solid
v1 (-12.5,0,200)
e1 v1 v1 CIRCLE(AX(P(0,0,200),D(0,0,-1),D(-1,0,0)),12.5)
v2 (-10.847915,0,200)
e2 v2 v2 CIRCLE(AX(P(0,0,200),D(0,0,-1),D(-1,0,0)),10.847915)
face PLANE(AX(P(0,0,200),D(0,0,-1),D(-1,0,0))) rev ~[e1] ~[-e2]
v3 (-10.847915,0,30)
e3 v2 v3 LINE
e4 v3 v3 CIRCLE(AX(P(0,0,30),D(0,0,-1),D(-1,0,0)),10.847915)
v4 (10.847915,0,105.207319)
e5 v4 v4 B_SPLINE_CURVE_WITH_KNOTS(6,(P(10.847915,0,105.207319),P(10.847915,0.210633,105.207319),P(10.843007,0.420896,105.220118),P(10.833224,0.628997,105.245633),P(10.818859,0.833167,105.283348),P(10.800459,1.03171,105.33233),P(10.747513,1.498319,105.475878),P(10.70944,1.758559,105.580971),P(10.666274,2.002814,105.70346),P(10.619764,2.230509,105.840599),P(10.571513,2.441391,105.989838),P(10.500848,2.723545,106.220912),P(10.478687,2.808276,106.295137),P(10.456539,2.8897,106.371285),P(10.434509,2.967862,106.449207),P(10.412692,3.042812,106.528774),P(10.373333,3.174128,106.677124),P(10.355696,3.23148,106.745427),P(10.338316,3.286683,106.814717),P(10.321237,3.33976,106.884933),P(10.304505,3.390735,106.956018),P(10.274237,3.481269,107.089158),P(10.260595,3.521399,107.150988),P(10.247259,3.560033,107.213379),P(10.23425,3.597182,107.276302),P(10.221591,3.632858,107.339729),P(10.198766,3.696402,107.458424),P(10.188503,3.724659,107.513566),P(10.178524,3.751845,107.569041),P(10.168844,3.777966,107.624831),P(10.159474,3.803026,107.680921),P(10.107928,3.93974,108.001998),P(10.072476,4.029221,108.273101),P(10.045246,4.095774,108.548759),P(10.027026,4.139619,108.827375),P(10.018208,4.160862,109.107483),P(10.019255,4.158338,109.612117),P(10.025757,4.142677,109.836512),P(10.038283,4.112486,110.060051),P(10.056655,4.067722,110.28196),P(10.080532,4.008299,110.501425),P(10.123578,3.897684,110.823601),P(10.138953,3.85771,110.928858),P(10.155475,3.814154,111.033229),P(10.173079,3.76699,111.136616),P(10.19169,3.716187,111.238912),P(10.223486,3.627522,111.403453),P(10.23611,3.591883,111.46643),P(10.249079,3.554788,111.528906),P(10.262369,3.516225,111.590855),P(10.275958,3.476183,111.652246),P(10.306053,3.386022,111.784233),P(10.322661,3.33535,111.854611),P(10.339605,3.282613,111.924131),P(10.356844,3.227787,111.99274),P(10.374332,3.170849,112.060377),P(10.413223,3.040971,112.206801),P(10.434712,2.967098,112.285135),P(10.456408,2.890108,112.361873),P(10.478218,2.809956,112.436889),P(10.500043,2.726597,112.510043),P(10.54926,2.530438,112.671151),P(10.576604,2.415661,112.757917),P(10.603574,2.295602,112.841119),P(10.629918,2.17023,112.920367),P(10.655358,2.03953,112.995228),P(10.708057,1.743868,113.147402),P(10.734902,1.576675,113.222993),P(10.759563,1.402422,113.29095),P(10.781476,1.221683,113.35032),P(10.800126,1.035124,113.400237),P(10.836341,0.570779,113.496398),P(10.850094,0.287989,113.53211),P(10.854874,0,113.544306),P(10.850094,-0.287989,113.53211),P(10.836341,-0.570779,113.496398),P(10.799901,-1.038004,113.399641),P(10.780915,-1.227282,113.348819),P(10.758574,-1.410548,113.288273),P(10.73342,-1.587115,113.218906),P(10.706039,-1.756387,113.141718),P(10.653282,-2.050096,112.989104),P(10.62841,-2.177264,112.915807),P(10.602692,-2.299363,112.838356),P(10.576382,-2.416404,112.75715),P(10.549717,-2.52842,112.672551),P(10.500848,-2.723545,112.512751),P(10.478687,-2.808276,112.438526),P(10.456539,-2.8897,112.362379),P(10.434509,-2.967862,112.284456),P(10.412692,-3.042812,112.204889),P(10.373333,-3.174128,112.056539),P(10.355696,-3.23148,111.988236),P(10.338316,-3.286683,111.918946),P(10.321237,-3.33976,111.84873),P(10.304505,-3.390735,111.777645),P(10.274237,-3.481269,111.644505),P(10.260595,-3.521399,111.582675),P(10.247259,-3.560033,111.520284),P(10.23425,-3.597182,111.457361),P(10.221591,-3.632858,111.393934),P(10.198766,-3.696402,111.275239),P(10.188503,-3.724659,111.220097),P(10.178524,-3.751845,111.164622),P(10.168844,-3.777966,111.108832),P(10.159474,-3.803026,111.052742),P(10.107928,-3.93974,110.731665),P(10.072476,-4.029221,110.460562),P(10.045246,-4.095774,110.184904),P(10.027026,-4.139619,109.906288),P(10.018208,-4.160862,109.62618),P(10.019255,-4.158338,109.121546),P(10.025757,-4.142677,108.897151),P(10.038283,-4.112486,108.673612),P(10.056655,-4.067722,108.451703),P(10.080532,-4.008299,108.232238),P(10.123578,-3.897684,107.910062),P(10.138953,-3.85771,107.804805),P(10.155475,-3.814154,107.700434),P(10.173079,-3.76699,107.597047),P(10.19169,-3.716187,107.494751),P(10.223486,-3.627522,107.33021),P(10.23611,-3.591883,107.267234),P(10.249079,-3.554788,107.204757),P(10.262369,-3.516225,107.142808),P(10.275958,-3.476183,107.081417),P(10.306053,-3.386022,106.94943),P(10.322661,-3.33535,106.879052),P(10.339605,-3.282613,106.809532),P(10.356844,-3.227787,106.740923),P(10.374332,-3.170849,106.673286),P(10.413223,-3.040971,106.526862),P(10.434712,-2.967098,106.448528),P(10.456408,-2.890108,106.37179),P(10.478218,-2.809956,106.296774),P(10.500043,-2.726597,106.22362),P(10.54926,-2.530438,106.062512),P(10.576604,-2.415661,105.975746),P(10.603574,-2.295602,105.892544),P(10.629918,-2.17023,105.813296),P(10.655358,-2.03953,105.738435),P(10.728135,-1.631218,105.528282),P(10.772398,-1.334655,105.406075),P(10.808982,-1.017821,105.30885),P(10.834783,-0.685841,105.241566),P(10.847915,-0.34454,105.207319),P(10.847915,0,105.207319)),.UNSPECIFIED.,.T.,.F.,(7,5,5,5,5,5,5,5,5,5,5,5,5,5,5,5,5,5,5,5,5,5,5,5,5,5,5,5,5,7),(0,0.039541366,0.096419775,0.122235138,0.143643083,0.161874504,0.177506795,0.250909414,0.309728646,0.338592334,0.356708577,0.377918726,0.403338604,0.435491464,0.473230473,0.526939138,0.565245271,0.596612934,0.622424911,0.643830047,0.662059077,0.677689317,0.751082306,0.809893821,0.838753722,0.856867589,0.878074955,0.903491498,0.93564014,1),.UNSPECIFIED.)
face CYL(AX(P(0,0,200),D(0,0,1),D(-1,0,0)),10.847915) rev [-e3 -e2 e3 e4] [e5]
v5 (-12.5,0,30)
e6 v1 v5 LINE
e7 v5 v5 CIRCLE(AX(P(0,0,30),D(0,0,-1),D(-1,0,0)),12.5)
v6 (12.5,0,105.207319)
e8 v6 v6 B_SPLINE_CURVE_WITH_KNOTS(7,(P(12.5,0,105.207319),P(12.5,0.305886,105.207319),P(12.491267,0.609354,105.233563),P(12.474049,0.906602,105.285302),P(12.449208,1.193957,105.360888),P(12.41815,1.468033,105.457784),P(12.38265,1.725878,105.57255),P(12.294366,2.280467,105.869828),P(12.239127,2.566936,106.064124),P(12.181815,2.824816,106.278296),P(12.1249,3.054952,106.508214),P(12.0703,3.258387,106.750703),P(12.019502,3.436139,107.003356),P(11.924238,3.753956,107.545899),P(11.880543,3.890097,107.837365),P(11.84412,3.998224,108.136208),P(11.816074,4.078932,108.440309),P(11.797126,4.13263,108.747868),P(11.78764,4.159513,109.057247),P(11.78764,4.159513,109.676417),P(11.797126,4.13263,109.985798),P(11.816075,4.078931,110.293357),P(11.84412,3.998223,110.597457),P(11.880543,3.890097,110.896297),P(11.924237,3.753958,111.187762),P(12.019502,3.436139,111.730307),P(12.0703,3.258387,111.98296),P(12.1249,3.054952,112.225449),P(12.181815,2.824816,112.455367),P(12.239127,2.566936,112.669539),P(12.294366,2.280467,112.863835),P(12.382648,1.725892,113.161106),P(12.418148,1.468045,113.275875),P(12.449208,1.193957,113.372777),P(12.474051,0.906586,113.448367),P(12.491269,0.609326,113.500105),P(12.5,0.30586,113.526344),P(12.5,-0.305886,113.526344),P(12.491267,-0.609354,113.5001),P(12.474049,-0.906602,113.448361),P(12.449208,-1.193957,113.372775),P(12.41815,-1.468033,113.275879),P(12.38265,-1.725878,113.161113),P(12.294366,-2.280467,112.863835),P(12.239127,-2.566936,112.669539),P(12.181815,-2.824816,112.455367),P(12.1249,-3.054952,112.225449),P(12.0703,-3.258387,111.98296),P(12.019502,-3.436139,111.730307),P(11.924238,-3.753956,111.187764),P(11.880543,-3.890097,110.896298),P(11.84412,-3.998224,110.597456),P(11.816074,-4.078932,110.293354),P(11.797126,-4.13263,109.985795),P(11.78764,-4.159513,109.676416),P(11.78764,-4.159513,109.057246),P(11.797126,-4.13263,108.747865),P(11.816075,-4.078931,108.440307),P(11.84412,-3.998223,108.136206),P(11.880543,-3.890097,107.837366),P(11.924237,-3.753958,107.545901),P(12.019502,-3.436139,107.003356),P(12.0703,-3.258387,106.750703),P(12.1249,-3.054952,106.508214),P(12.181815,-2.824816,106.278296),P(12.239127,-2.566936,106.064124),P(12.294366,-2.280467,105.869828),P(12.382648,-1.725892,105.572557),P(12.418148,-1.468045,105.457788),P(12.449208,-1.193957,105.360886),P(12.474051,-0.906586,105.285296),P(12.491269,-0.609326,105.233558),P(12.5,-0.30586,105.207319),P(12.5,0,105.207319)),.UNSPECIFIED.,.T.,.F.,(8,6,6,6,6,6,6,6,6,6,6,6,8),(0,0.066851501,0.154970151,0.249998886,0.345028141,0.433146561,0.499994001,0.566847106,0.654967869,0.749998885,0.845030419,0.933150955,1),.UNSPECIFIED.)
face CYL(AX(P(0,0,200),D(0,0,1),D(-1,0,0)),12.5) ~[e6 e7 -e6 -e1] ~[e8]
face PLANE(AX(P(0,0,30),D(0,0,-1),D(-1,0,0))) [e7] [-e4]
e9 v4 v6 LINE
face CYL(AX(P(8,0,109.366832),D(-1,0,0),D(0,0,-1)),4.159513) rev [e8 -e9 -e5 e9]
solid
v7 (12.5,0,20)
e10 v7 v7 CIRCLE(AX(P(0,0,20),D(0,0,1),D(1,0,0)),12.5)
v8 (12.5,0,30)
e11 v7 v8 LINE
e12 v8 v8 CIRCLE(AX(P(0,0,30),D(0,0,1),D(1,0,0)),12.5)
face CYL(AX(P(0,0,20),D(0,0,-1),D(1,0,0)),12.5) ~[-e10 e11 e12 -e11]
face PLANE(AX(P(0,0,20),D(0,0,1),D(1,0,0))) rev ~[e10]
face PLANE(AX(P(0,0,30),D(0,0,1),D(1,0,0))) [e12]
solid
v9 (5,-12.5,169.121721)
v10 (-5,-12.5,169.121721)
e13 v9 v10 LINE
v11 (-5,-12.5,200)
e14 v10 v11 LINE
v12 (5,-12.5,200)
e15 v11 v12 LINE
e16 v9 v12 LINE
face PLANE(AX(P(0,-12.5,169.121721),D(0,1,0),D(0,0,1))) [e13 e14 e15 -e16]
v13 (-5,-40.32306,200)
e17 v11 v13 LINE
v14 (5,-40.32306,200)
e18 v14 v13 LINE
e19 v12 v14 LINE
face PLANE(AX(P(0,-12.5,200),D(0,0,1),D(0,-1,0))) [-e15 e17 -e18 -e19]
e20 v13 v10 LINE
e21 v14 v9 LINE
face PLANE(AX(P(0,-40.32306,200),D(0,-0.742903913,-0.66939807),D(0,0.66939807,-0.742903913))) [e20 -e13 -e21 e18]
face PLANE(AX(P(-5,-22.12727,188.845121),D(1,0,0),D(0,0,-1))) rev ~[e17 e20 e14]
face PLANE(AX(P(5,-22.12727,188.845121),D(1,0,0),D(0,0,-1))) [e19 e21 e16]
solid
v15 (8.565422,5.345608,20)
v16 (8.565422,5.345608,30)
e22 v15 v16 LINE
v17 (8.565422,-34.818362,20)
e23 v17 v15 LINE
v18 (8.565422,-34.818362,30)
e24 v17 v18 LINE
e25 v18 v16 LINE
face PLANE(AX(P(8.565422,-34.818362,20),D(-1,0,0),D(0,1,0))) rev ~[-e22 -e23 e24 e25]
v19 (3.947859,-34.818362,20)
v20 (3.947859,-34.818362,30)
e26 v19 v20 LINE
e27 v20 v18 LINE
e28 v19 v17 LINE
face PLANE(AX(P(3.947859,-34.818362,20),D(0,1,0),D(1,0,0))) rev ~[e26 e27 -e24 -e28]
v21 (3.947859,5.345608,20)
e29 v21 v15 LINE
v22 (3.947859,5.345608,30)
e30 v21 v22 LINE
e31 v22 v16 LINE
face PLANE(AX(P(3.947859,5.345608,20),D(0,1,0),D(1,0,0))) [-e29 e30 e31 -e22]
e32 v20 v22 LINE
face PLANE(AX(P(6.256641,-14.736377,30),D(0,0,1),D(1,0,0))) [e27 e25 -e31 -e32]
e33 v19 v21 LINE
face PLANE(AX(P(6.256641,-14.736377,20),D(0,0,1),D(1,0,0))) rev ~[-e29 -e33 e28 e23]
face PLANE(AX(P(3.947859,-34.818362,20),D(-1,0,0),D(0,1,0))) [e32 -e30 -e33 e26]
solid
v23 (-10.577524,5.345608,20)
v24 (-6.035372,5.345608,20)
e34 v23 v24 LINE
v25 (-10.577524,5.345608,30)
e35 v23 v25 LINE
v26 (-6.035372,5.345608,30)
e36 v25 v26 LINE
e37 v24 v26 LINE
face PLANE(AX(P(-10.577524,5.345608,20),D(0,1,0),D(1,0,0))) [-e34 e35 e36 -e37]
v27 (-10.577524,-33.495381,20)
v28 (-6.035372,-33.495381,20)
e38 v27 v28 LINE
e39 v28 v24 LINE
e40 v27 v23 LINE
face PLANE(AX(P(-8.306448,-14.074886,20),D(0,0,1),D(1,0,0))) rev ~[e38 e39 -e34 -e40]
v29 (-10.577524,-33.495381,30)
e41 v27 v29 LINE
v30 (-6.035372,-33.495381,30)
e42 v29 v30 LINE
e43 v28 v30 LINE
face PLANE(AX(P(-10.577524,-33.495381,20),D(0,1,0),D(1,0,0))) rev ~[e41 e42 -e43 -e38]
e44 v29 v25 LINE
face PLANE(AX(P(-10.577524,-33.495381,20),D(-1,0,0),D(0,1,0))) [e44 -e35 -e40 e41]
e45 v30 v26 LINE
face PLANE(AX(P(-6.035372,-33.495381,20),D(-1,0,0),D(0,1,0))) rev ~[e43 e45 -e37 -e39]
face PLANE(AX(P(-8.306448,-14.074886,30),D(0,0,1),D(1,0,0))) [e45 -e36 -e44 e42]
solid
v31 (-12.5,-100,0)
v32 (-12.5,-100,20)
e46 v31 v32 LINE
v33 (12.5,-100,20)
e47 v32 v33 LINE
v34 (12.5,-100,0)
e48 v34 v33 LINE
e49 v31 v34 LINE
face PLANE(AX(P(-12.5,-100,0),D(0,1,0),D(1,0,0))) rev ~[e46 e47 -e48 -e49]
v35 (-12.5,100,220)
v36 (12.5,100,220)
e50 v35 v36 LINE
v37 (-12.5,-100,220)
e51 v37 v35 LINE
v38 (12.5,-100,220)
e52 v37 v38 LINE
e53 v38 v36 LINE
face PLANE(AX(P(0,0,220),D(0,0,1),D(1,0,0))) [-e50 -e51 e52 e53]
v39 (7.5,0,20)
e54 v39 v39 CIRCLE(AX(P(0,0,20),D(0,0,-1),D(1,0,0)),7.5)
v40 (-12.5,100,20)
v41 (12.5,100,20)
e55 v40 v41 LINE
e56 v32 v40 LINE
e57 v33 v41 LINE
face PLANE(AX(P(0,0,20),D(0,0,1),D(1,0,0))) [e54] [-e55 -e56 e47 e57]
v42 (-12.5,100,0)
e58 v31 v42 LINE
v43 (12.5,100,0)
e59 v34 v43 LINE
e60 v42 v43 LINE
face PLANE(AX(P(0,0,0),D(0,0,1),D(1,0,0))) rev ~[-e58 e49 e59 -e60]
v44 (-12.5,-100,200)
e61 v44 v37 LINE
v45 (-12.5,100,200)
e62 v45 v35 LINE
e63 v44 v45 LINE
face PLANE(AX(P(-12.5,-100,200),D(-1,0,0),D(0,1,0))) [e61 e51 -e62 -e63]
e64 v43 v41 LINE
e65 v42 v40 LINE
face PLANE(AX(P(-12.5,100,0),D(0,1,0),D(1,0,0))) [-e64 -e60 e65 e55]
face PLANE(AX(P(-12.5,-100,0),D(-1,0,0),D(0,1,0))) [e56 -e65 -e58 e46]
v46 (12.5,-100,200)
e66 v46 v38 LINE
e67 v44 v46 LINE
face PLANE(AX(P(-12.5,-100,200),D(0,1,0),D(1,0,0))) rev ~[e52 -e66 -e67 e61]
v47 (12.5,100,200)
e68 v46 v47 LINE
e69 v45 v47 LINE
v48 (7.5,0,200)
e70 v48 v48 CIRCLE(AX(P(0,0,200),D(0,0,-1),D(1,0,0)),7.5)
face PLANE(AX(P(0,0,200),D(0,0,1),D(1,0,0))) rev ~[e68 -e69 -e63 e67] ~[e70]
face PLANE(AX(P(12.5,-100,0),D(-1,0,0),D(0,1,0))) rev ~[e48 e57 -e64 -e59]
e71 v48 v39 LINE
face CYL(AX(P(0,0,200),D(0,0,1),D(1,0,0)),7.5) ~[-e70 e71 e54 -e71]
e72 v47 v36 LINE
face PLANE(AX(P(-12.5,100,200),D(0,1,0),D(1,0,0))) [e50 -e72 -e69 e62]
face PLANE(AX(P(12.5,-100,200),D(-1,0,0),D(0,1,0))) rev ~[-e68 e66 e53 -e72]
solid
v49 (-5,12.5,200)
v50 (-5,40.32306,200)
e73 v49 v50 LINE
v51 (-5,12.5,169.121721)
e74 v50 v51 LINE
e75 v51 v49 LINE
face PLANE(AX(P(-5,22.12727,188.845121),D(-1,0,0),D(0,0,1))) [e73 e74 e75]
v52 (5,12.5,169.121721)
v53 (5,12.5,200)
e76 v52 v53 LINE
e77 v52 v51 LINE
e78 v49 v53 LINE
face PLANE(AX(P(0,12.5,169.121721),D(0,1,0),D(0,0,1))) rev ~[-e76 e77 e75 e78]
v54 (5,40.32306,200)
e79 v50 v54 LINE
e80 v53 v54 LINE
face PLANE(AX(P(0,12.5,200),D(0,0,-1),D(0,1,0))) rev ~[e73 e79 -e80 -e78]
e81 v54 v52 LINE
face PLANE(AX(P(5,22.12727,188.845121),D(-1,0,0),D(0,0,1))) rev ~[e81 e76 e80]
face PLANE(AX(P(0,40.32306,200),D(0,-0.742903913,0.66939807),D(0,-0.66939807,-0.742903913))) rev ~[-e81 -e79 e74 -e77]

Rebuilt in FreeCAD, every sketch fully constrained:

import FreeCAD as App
import Part
import Sketcher
from FreeCAD import Vector
Q = App.Units.Quantity


def add_polygon(sketch, points):
    """Adds a closed chain of lines whose ends are joined by coincident constraints."""
    first, n = sketch.GeometryCount, len(points)
    for a, b in zip(points, points[1:] + points[:1]):
        sketch.addGeometry(Part.LineSegment(App.Vector(*a, 0), App.Vector(*b, 0)), False)
    for i in range(n):
        sketch.addConstraint(Sketcher.Constraint("Coincident", first + i, 2, first + (i + 1) % n, 1))

doc = App.newDocument("Part")
body = doc.addObject("PartDesign::Body", "Body")

# Sketch on XY plane
sketch1 = body.newObject("Sketcher::SketchObject", "Sketch")
sketch1.AttachmentSupport = (doc.getObject("XY_Plane"), [""])
sketch1.MapMode = "FlatFace"
add_polygon(sketch1, [(-12.5, 100), (-12.5, -100), (12.5, -100), (12.5, 100)])  # lines 0-3
sketch1.addConstraint(Sketcher.Constraint("Vertical", 0))
sketch1.addConstraint(Sketcher.Constraint("Horizontal", 1))
sketch1.addConstraint(Sketcher.Constraint("Vertical", 2))
sketch1.addConstraint(Sketcher.Constraint("Horizontal", 3))
sketch1.addConstraint(Sketcher.Constraint("Symmetric", 0, 2, 2, 2, -1, 1))
sketch1.addConstraint(Sketcher.Constraint("DistanceX", 1, 1, 1, 2, Q("25 mm")))
sketch1.addConstraint(Sketcher.Constraint("DistanceY", 0, 2, 0, 1, Q("200 mm")))
pad1 = body.newObject("PartDesign::Pad", "Pad")
pad1.Profile = sketch1
pad1.Length = 20
body2 = doc.addObject("PartDesign::Body", "Body001")

# Sketch on XY plane
sketch2 = body2.newObject("Sketcher::SketchObject", "Sketch001")
sketch2.AttachmentSupport = (doc.getObject("XY_Plane001"), [""])
sketch2.MapMode = "FlatFace"
sketch2.AttachmentOffset = App.Placement(Vector(0, 0, 200), App.Rotation())
add_polygon(sketch2, [(-12.5, 100), (-12.5, -100), (12.5, -100), (12.5, 100)])  # lines 0-3
sketch2.addConstraint(Sketcher.Constraint("Vertical", 0))
sketch2.addConstraint(Sketcher.Constraint("Horizontal", 1))
sketch2.addConstraint(Sketcher.Constraint("Vertical", 2))
sketch2.addConstraint(Sketcher.Constraint("Horizontal", 3))
sketch2.addConstraint(Sketcher.Constraint("Symmetric", 0, 2, 2, 2, -1, 1))
sketch2.addConstraint(Sketcher.Constraint("DistanceX", 1, 1, 1, 2, Q("25 mm")))
sketch2.addConstraint(Sketcher.Constraint("DistanceY", 0, 2, 0, 1, Q("200 mm")))
pad2 = body2.newObject("PartDesign::Pad", "Pad001")
pad2.Profile = sketch2
pad2.Length = 20
body.AllowCompound = True
doc.recompute()

boolean = body.newObject("PartDesign::Boolean", "Boolean")
boolean.Type = "Fuse"
boolean.addObjects([body2])

# Sketch on XY plane
sketch3 = body.newObject("Sketcher::SketchObject", "Sketch002")
sketch3.AttachmentSupport = (doc.getObject("XY_Plane"), [""])
sketch3.MapMode = "FlatFace"
sketch3.AttachmentOffset = App.Placement(Vector(0, 0, 200), App.Rotation())
sketch3.addGeometry(Part.Circle(Vector(0, 0, 0), Vector(0, 0, 1), 7.5), False)
sketch3.addConstraint(Sketcher.Constraint("Coincident", 0, 3, -1, 1))
sketch3.addConstraint(Sketcher.Constraint("Diameter", 0, Q("15 mm")))
pad3 = body.newObject("PartDesign::Pad", "Pad002")
pad3.Profile = sketch3
pad3.Length = 180
pad3.Reversed = True
body3 = doc.addObject("PartDesign::Body", "Body002")

# Sketch on XY plane
sketch4 = body3.newObject("Sketcher::SketchObject", "Sketch003")
sketch4.AttachmentSupport = (doc.getObject("XY_Plane002"), [""])
sketch4.MapMode = "FlatFace"
sketch4.AttachmentOffset = App.Placement(Vector(0, 0, 200), App.Rotation())
sketch4.addGeometry(Part.Circle(Vector(0, 0, 0), Vector(0, 0, 1), 12.5), False)
sketch4.addGeometry(Part.Circle(Vector(0, 0, 0), Vector(0, 0, 1), 10.847915), False)
sketch4.addConstraint(Sketcher.Constraint("Coincident", 0, 3, -1, 1))
sketch4.addConstraint(Sketcher.Constraint("Coincident", 1, 3, -1, 1))
sketch4.addConstraint(Sketcher.Constraint("Diameter", 0, Q("25 mm")))
sketch4.addConstraint(Sketcher.Constraint("Diameter", 1, Q("21.695829 mm")))
pad4 = body3.newObject("PartDesign::Pad", "Pad003")
pad4.Profile = sketch4
pad4.Length = 170
pad4.Reversed = True

# Sketch on YZ plane
sketch5 = body3.newObject("Sketcher::SketchObject", "Sketch004")
sketch5.AttachmentSupport = (doc.getObject("YZ_Plane002"), [""])
sketch5.MapMode = "FlatFace"
sketch5.AttachmentOffset = App.Placement(Vector(0, 0, 8), App.Rotation())
sketch5.addGeometry(Part.Circle(Vector(0, 109.366832, 0), Vector(0, 0, 1), 4.159513), False)
sketch5.addConstraint(Sketcher.Constraint("PointOnObject", 0, 3, -2))
sketch5.addConstraint(Sketcher.Constraint("Diameter", 0, Q("8.319026 mm")))
sketch5.addConstraint(Sketcher.Constraint("DistanceY", -1, 1, 0, 3, Q("109.366832 mm")))
pocket1 = body3.newObject("PartDesign::Pocket", "Pocket")
pocket1.Profile = sketch5
pocket1.Length = 206
pocket1.Reversed = True
body4 = doc.addObject("PartDesign::Body", "Body003")

# Sketch on XY plane
sketch6 = body4.newObject("Sketcher::SketchObject", "Sketch005")
sketch6.AttachmentSupport = (doc.getObject("XY_Plane003"), [""])
sketch6.MapMode = "FlatFace"
sketch6.AttachmentOffset = App.Placement(Vector(0, 0, 20), App.Rotation())
sketch6.addGeometry(Part.Circle(Vector(0, 0, 0), Vector(0, 0, 1), 12.5), False)
sketch6.addConstraint(Sketcher.Constraint("Coincident", 0, 3, -1, 1))
sketch6.addConstraint(Sketcher.Constraint("Diameter", 0, Q("25 mm")))
pad5 = body4.newObject("PartDesign::Pad", "Pad004")
pad5.Profile = sketch6
pad5.Length = 10
body5 = doc.addObject("PartDesign::Body", "Body004")

# Sketch on XY plane
sketch7 = body5.newObject("Sketcher::SketchObject", "Sketch006")
sketch7.AttachmentSupport = (doc.getObject("XY_Plane004"), [""])
sketch7.MapMode = "FlatFace"
sketch7.AttachmentOffset = App.Placement(Vector(0, 0, 20), App.Rotation())
add_polygon(sketch7, [(-10.577524, 5.345608), (-10.577524, -33.495381), (-6.035372, -33.495381), (-6.035372, 5.345608)])  # lines 0-3
sketch7.addConstraint(Sketcher.Constraint("Vertical", 0))
sketch7.addConstraint(Sketcher.Constraint("Horizontal", 1))
sketch7.addConstraint(Sketcher.Constraint("Vertical", 2))
sketch7.addConstraint(Sketcher.Constraint("Horizontal", 3))
sketch7.addConstraint(Sketcher.Constraint("DistanceY", 0, 2, 0, 1, Q("38.840989 mm")))
sketch7.addConstraint(Sketcher.Constraint("DistanceX", 1, 1, 1, 2, Q("4.542152 mm")))
sketch7.addConstraint(Sketcher.Constraint("DistanceY", 0, 2, -1, 1, Q("33.495381 mm")))
sketch7.addConstraint(Sketcher.Constraint("DistanceX", 1, 2, -1, 1, Q("6.035372 mm")))
pad6 = body5.newObject("PartDesign::Pad", "Pad005")
pad6.Profile = sketch7
pad6.Length = 10
body6 = doc.addObject("PartDesign::Body", "Body005")

# Sketch on XY plane
sketch8 = body6.newObject("Sketcher::SketchObject", "Sketch007")
sketch8.AttachmentSupport = (doc.getObject("XY_Plane005"), [""])
sketch8.MapMode = "FlatFace"
sketch8.AttachmentOffset = App.Placement(Vector(0, 0, 20), App.Rotation())
add_polygon(sketch8, [(3.947859, 5.345608), (3.947859, -34.818362), (8.565422, -34.818362), (8.565422, 5.345608)])  # lines 0-3
sketch8.addConstraint(Sketcher.Constraint("Vertical", 0))
sketch8.addConstraint(Sketcher.Constraint("Horizontal", 1))
sketch8.addConstraint(Sketcher.Constraint("Vertical", 2))
sketch8.addConstraint(Sketcher.Constraint("Horizontal", 3))
sketch8.addConstraint(Sketcher.Constraint("DistanceY", 0, 2, 0, 1, Q("40.163971 mm")))
sketch8.addConstraint(Sketcher.Constraint("DistanceX", 1, 1, 1, 2, Q("4.617563 mm")))
sketch8.addConstraint(Sketcher.Constraint("DistanceX", -1, 1, 0, 2, Q("3.947859 mm")))
sketch8.addConstraint(Sketcher.Constraint("DistanceY", -1, 1, 2, 2, Q("5.345608 mm")))
pad7 = body6.newObject("PartDesign::Pad", "Pad006")
pad7.Profile = sketch8
pad7.Length = 10
body7 = doc.addObject("PartDesign::Body", "Body006")

# Sketch on YZ plane
sketch9 = body7.newObject("Sketcher::SketchObject", "Sketch008")
sketch9.AttachmentSupport = (doc.getObject("YZ_Plane006"), [""])
sketch9.MapMode = "FlatFace"
add_polygon(sketch9, [(12.5, 169.121721), (40.32306, 200), (12.5, 200)])  # lines 0-2
sketch9.addConstraint(Sketcher.Constraint("Horizontal", 1))
sketch9.addConstraint(Sketcher.Constraint("Vertical", 2))
sketch9.addConstraint(Sketcher.Constraint("DistanceY", -1, 1, 0, 2, Q("200 mm")))
sketch9.addConstraint(Sketcher.Constraint("DistanceX", -1, 1, 1, 2, Q("12.5 mm")))
sketch9.addConstraint(Sketcher.Constraint("DistanceX", 1, 2, 1, 1, Q("27.82306 mm")))
sketch9.addConstraint(Sketcher.Constraint("DistanceY", 2, 2, 2, 1, Q("30.878279 mm")))
pad8 = body7.newObject("PartDesign::Pad", "Pad007")
pad8.Profile = sketch9
pad8.Length = 10
pad8.Midplane = True
body8 = doc.addObject("PartDesign::Body", "Body007")

# Sketch on YZ plane
sketch10 = body8.newObject("Sketcher::SketchObject", "Sketch009")
sketch10.AttachmentSupport = (doc.getObject("YZ_Plane007"), [""])
sketch10.MapMode = "FlatFace"
add_polygon(sketch10, [(-12.5, 169.121721), (-12.5, 200), (-40.32306, 200)])  # lines 0-2
sketch10.addConstraint(Sketcher.Constraint("Vertical", 0))
sketch10.addConstraint(Sketcher.Constraint("Horizontal", 1))
sketch10.addConstraint(Sketcher.Constraint("DistanceY", -1, 1, 0, 2, Q("200 mm")))
sketch10.addConstraint(Sketcher.Constraint("DistanceX", 0, 2, -1, 1, Q("12.5 mm")))
sketch10.addConstraint(Sketcher.Constraint("DistanceX", 1, 2, 1, 1, Q("27.82306 mm")))
sketch10.addConstraint(Sketcher.Constraint("DistanceY", 0, 1, 0, 2, Q("30.878279 mm")))
pad9 = body8.newObject("PartDesign::Pad", "Pad008")
pad9.Profile = sketch10
pad9.Length = 10
pad9.Midplane = True

doc.recompute()
